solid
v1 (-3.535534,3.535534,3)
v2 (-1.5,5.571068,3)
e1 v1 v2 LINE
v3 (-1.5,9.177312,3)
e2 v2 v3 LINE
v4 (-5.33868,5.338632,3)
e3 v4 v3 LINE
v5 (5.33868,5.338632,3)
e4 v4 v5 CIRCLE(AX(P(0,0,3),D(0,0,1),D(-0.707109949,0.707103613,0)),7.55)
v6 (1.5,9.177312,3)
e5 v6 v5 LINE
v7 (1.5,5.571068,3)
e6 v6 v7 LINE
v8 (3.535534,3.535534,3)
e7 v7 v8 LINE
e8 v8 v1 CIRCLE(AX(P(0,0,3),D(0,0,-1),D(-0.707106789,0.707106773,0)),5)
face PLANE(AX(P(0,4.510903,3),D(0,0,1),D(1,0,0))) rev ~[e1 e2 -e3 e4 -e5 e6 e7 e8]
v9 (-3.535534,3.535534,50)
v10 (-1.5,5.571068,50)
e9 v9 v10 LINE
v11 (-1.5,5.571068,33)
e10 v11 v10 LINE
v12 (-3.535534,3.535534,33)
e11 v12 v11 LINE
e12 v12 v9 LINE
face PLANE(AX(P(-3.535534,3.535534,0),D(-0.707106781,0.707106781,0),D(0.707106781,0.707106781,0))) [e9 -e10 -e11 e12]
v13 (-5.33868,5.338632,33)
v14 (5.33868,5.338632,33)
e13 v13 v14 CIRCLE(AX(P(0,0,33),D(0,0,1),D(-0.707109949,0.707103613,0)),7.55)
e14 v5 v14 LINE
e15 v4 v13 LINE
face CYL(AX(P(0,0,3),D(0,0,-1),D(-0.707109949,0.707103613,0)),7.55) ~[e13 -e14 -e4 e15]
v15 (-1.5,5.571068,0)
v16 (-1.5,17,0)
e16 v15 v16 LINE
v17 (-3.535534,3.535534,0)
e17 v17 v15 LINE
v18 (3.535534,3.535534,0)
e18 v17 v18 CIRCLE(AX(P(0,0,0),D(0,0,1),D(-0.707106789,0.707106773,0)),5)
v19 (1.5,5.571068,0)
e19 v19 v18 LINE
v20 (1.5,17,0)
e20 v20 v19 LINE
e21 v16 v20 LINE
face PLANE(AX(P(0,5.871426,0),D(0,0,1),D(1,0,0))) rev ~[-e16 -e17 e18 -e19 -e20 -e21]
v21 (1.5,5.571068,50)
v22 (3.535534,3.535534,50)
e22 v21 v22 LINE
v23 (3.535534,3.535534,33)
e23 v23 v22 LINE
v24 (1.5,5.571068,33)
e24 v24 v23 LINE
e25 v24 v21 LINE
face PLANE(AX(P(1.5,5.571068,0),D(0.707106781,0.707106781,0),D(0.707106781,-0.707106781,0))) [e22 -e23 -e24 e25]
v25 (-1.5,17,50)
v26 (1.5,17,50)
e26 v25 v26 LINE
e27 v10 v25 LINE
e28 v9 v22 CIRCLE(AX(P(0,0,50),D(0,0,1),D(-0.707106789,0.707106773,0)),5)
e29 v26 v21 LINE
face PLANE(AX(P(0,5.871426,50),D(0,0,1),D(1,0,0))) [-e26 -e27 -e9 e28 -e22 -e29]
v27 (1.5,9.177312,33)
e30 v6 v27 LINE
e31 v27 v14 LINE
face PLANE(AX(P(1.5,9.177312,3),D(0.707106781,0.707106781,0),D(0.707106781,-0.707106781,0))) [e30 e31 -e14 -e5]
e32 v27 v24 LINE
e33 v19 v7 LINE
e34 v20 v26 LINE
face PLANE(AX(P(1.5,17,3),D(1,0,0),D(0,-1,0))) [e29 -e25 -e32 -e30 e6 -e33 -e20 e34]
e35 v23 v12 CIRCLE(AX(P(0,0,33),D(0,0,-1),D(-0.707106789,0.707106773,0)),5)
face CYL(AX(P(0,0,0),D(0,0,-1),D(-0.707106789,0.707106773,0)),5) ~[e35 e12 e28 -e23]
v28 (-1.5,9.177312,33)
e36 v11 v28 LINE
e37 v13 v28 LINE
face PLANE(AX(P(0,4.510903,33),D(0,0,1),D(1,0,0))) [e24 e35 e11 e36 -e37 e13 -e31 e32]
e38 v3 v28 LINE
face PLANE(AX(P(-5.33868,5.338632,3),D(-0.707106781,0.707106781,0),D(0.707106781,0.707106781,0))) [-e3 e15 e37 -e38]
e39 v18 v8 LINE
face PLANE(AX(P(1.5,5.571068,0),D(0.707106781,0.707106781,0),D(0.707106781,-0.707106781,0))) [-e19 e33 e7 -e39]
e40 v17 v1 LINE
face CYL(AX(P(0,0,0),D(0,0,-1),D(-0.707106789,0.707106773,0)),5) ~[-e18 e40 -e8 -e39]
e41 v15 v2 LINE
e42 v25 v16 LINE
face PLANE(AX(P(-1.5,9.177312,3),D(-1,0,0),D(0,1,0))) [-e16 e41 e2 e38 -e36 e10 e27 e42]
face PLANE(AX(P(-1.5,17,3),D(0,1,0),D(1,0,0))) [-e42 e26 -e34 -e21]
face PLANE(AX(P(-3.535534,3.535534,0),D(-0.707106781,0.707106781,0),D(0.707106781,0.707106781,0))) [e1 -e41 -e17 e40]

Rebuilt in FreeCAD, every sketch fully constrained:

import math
import FreeCAD as App
import Part
import Sketcher
from FreeCAD import Vector

doc = App.newDocument("Part")
body = doc.addObject("PartDesign::Body", "Body")

sketch1 = body.newObject("Sketcher::SketchObject", "Sketch")
sketch1.AttachmentSupport = (doc.getObject("XY_Plane"), [""])
sketch1.MapMode = "FlatFace"
sketch1.addGeometry([
    Part.ArcOfCircle(Part.Circle(Vector(0, 0, 0), Vector(0, 0, 1), 7.55), math.radians(135.000257), math.radians(404.999743)),
    Part.LineSegment(Vector(5.33868, 5.338632, 0), Vector(1.5, 9.177312, 0)),
    Part.LineSegment(Vector(1.5, 9.177312, 0), Vector(1.5, 17, 0)),
    Part.LineSegment(Vector(1.5, 17, 0), Vector(-1.5, 17, 0)),
    Part.LineSegment(Vector(-1.5, 17, 0), Vector(-1.5, 9.177312, 0)),
    Part.LineSegment(Vector(-1.5, 9.177312, 0), Vector(-5.33868, 5.338632, 0)),
], False)
sketch1.addConstraint([
    Sketcher.Constraint("Coincident", 0, 2, 1, 1),
    Sketcher.Constraint("Coincident", 1, 2, 2, 1),
    Sketcher.Constraint("Coincident", 2, 2, 3, 1),
    Sketcher.Constraint("Coincident", 3, 2, 4, 1),
    Sketcher.Constraint("Coincident", 4, 2, 5, 1),
    Sketcher.Constraint("Coincident", 5, 2, 0, 1),
    Sketcher.Constraint("Vertical", 2),
    Sketcher.Constraint("Horizontal", 3),
    Sketcher.Constraint("Vertical", 4),
    Sketcher.Constraint("Coincident", 0, 3, -1, 1),
    Sketcher.Constraint("Symmetric", 1, 2, 4, 2, -2),
    Sketcher.Constraint("Perpendicular", 1, 5),
    Sketcher.Constraint("Horizontal", 0, 2, 5, 2),
    Sketcher.Constraint("DistanceX", 3, 2, 3, 1, 3.0),
    Sketcher.Constraint("Radius", 0, 7.55),
    Sketcher.Constraint("DistanceY", -1, 1, 2, 2, 17.0),
    Sketcher.Constraint("DistanceX", -1, 1, 0, 2, 5.33868),
])
pad1 = body.newObject("PartDesign::Pad", "Pad")
pad1.Profile = sketch1
pad1.Length = 30
body2 = doc.addObject("PartDesign::Body", "Body001")
doc.recompute()

body.Placement = App.Placement(Vector(0, 0, 3), App.Rotation(Vector(0, 0, 1), 0))
boolean = body2.newObject("PartDesign::Boolean", "Boolean")
boolean.Type = "Fuse"
boolean.addObjects([body])
body3 = doc.addObject("PartDesign::Body", "Body002")

sketch2 = body3.newObject("Sketcher::SketchObject", "Sketch001")
sketch2.AttachmentSupport = (doc.getObject("XY_Plane002"), [""])
sketch2.MapMode = "FlatFace"
sketch2.addGeometry([
    Part.ArcOfCircle(Part.Circle(Vector(0, 0, 0), Vector(0, 0, 1), 5), math.radians(135.000001), math.radians(404.999999)),
    Part.LineSegment(Vector(3.535534, 3.535534, 0), Vector(1.5, 5.571068, 0)),
    Part.LineSegment(Vector(1.5, 5.571068, 0), Vector(1.5, 17, 0)),
    Part.LineSegment(Vector(1.5, 17, 0), Vector(-1.5, 17, 0)),
    Part.LineSegment(Vector(-1.5, 17, 0), Vector(-1.5, 5.571068, 0)),
    Part.LineSegment(Vector(-1.5, 5.571068, 0), Vector(-3.535534, 3.535534, 0)),
], False)
sketch2.addConstraint([
    Sketcher.Constraint("Tangent", 0, 2, 1, 1),
    Sketcher.Constraint("Coincident", 1, 2, 2, 1),
    Sketcher.Constraint("Coincident", 2, 2, 3, 1),
    Sketcher.Constraint("Coincident", 3, 2, 4, 1),
    Sketcher.Constraint("Coincident", 4, 2, 5, 1),
    Sketcher.Constraint("Tangent", 5, 2, 0, 1),
    Sketcher.Constraint("Vertical", 2),
    Sketcher.Constraint("Horizontal", 3),
    Sketcher.Constraint("Vertical", 4),
    Sketcher.Constraint("Coincident", 0, 3, -1, 1),
    Sketcher.Constraint("Symmetric", 1, 2, 4, 2, -2),
    Sketcher.Constraint("Perpendicular", 1, 5),
    Sketcher.Constraint("Radius", 0, 5.0),
    Sketcher.Constraint("DistanceX", 3, 2, 3, 1, 3.0),
    Sketcher.Constraint("DistanceY", -1, 1, 2, 2, 17.0),
])
pad2 = body3.newObject("PartDesign::Pad", "Pad001")
pad2.Profile = sketch2
pad2.Length = 50
doc.recompute()

boolean2 = body3.newObject("PartDesign::Boolean", "Boolean001")
boolean2.Type = "Fuse"
boolean2.addObjects([body2])

doc.recompute()
